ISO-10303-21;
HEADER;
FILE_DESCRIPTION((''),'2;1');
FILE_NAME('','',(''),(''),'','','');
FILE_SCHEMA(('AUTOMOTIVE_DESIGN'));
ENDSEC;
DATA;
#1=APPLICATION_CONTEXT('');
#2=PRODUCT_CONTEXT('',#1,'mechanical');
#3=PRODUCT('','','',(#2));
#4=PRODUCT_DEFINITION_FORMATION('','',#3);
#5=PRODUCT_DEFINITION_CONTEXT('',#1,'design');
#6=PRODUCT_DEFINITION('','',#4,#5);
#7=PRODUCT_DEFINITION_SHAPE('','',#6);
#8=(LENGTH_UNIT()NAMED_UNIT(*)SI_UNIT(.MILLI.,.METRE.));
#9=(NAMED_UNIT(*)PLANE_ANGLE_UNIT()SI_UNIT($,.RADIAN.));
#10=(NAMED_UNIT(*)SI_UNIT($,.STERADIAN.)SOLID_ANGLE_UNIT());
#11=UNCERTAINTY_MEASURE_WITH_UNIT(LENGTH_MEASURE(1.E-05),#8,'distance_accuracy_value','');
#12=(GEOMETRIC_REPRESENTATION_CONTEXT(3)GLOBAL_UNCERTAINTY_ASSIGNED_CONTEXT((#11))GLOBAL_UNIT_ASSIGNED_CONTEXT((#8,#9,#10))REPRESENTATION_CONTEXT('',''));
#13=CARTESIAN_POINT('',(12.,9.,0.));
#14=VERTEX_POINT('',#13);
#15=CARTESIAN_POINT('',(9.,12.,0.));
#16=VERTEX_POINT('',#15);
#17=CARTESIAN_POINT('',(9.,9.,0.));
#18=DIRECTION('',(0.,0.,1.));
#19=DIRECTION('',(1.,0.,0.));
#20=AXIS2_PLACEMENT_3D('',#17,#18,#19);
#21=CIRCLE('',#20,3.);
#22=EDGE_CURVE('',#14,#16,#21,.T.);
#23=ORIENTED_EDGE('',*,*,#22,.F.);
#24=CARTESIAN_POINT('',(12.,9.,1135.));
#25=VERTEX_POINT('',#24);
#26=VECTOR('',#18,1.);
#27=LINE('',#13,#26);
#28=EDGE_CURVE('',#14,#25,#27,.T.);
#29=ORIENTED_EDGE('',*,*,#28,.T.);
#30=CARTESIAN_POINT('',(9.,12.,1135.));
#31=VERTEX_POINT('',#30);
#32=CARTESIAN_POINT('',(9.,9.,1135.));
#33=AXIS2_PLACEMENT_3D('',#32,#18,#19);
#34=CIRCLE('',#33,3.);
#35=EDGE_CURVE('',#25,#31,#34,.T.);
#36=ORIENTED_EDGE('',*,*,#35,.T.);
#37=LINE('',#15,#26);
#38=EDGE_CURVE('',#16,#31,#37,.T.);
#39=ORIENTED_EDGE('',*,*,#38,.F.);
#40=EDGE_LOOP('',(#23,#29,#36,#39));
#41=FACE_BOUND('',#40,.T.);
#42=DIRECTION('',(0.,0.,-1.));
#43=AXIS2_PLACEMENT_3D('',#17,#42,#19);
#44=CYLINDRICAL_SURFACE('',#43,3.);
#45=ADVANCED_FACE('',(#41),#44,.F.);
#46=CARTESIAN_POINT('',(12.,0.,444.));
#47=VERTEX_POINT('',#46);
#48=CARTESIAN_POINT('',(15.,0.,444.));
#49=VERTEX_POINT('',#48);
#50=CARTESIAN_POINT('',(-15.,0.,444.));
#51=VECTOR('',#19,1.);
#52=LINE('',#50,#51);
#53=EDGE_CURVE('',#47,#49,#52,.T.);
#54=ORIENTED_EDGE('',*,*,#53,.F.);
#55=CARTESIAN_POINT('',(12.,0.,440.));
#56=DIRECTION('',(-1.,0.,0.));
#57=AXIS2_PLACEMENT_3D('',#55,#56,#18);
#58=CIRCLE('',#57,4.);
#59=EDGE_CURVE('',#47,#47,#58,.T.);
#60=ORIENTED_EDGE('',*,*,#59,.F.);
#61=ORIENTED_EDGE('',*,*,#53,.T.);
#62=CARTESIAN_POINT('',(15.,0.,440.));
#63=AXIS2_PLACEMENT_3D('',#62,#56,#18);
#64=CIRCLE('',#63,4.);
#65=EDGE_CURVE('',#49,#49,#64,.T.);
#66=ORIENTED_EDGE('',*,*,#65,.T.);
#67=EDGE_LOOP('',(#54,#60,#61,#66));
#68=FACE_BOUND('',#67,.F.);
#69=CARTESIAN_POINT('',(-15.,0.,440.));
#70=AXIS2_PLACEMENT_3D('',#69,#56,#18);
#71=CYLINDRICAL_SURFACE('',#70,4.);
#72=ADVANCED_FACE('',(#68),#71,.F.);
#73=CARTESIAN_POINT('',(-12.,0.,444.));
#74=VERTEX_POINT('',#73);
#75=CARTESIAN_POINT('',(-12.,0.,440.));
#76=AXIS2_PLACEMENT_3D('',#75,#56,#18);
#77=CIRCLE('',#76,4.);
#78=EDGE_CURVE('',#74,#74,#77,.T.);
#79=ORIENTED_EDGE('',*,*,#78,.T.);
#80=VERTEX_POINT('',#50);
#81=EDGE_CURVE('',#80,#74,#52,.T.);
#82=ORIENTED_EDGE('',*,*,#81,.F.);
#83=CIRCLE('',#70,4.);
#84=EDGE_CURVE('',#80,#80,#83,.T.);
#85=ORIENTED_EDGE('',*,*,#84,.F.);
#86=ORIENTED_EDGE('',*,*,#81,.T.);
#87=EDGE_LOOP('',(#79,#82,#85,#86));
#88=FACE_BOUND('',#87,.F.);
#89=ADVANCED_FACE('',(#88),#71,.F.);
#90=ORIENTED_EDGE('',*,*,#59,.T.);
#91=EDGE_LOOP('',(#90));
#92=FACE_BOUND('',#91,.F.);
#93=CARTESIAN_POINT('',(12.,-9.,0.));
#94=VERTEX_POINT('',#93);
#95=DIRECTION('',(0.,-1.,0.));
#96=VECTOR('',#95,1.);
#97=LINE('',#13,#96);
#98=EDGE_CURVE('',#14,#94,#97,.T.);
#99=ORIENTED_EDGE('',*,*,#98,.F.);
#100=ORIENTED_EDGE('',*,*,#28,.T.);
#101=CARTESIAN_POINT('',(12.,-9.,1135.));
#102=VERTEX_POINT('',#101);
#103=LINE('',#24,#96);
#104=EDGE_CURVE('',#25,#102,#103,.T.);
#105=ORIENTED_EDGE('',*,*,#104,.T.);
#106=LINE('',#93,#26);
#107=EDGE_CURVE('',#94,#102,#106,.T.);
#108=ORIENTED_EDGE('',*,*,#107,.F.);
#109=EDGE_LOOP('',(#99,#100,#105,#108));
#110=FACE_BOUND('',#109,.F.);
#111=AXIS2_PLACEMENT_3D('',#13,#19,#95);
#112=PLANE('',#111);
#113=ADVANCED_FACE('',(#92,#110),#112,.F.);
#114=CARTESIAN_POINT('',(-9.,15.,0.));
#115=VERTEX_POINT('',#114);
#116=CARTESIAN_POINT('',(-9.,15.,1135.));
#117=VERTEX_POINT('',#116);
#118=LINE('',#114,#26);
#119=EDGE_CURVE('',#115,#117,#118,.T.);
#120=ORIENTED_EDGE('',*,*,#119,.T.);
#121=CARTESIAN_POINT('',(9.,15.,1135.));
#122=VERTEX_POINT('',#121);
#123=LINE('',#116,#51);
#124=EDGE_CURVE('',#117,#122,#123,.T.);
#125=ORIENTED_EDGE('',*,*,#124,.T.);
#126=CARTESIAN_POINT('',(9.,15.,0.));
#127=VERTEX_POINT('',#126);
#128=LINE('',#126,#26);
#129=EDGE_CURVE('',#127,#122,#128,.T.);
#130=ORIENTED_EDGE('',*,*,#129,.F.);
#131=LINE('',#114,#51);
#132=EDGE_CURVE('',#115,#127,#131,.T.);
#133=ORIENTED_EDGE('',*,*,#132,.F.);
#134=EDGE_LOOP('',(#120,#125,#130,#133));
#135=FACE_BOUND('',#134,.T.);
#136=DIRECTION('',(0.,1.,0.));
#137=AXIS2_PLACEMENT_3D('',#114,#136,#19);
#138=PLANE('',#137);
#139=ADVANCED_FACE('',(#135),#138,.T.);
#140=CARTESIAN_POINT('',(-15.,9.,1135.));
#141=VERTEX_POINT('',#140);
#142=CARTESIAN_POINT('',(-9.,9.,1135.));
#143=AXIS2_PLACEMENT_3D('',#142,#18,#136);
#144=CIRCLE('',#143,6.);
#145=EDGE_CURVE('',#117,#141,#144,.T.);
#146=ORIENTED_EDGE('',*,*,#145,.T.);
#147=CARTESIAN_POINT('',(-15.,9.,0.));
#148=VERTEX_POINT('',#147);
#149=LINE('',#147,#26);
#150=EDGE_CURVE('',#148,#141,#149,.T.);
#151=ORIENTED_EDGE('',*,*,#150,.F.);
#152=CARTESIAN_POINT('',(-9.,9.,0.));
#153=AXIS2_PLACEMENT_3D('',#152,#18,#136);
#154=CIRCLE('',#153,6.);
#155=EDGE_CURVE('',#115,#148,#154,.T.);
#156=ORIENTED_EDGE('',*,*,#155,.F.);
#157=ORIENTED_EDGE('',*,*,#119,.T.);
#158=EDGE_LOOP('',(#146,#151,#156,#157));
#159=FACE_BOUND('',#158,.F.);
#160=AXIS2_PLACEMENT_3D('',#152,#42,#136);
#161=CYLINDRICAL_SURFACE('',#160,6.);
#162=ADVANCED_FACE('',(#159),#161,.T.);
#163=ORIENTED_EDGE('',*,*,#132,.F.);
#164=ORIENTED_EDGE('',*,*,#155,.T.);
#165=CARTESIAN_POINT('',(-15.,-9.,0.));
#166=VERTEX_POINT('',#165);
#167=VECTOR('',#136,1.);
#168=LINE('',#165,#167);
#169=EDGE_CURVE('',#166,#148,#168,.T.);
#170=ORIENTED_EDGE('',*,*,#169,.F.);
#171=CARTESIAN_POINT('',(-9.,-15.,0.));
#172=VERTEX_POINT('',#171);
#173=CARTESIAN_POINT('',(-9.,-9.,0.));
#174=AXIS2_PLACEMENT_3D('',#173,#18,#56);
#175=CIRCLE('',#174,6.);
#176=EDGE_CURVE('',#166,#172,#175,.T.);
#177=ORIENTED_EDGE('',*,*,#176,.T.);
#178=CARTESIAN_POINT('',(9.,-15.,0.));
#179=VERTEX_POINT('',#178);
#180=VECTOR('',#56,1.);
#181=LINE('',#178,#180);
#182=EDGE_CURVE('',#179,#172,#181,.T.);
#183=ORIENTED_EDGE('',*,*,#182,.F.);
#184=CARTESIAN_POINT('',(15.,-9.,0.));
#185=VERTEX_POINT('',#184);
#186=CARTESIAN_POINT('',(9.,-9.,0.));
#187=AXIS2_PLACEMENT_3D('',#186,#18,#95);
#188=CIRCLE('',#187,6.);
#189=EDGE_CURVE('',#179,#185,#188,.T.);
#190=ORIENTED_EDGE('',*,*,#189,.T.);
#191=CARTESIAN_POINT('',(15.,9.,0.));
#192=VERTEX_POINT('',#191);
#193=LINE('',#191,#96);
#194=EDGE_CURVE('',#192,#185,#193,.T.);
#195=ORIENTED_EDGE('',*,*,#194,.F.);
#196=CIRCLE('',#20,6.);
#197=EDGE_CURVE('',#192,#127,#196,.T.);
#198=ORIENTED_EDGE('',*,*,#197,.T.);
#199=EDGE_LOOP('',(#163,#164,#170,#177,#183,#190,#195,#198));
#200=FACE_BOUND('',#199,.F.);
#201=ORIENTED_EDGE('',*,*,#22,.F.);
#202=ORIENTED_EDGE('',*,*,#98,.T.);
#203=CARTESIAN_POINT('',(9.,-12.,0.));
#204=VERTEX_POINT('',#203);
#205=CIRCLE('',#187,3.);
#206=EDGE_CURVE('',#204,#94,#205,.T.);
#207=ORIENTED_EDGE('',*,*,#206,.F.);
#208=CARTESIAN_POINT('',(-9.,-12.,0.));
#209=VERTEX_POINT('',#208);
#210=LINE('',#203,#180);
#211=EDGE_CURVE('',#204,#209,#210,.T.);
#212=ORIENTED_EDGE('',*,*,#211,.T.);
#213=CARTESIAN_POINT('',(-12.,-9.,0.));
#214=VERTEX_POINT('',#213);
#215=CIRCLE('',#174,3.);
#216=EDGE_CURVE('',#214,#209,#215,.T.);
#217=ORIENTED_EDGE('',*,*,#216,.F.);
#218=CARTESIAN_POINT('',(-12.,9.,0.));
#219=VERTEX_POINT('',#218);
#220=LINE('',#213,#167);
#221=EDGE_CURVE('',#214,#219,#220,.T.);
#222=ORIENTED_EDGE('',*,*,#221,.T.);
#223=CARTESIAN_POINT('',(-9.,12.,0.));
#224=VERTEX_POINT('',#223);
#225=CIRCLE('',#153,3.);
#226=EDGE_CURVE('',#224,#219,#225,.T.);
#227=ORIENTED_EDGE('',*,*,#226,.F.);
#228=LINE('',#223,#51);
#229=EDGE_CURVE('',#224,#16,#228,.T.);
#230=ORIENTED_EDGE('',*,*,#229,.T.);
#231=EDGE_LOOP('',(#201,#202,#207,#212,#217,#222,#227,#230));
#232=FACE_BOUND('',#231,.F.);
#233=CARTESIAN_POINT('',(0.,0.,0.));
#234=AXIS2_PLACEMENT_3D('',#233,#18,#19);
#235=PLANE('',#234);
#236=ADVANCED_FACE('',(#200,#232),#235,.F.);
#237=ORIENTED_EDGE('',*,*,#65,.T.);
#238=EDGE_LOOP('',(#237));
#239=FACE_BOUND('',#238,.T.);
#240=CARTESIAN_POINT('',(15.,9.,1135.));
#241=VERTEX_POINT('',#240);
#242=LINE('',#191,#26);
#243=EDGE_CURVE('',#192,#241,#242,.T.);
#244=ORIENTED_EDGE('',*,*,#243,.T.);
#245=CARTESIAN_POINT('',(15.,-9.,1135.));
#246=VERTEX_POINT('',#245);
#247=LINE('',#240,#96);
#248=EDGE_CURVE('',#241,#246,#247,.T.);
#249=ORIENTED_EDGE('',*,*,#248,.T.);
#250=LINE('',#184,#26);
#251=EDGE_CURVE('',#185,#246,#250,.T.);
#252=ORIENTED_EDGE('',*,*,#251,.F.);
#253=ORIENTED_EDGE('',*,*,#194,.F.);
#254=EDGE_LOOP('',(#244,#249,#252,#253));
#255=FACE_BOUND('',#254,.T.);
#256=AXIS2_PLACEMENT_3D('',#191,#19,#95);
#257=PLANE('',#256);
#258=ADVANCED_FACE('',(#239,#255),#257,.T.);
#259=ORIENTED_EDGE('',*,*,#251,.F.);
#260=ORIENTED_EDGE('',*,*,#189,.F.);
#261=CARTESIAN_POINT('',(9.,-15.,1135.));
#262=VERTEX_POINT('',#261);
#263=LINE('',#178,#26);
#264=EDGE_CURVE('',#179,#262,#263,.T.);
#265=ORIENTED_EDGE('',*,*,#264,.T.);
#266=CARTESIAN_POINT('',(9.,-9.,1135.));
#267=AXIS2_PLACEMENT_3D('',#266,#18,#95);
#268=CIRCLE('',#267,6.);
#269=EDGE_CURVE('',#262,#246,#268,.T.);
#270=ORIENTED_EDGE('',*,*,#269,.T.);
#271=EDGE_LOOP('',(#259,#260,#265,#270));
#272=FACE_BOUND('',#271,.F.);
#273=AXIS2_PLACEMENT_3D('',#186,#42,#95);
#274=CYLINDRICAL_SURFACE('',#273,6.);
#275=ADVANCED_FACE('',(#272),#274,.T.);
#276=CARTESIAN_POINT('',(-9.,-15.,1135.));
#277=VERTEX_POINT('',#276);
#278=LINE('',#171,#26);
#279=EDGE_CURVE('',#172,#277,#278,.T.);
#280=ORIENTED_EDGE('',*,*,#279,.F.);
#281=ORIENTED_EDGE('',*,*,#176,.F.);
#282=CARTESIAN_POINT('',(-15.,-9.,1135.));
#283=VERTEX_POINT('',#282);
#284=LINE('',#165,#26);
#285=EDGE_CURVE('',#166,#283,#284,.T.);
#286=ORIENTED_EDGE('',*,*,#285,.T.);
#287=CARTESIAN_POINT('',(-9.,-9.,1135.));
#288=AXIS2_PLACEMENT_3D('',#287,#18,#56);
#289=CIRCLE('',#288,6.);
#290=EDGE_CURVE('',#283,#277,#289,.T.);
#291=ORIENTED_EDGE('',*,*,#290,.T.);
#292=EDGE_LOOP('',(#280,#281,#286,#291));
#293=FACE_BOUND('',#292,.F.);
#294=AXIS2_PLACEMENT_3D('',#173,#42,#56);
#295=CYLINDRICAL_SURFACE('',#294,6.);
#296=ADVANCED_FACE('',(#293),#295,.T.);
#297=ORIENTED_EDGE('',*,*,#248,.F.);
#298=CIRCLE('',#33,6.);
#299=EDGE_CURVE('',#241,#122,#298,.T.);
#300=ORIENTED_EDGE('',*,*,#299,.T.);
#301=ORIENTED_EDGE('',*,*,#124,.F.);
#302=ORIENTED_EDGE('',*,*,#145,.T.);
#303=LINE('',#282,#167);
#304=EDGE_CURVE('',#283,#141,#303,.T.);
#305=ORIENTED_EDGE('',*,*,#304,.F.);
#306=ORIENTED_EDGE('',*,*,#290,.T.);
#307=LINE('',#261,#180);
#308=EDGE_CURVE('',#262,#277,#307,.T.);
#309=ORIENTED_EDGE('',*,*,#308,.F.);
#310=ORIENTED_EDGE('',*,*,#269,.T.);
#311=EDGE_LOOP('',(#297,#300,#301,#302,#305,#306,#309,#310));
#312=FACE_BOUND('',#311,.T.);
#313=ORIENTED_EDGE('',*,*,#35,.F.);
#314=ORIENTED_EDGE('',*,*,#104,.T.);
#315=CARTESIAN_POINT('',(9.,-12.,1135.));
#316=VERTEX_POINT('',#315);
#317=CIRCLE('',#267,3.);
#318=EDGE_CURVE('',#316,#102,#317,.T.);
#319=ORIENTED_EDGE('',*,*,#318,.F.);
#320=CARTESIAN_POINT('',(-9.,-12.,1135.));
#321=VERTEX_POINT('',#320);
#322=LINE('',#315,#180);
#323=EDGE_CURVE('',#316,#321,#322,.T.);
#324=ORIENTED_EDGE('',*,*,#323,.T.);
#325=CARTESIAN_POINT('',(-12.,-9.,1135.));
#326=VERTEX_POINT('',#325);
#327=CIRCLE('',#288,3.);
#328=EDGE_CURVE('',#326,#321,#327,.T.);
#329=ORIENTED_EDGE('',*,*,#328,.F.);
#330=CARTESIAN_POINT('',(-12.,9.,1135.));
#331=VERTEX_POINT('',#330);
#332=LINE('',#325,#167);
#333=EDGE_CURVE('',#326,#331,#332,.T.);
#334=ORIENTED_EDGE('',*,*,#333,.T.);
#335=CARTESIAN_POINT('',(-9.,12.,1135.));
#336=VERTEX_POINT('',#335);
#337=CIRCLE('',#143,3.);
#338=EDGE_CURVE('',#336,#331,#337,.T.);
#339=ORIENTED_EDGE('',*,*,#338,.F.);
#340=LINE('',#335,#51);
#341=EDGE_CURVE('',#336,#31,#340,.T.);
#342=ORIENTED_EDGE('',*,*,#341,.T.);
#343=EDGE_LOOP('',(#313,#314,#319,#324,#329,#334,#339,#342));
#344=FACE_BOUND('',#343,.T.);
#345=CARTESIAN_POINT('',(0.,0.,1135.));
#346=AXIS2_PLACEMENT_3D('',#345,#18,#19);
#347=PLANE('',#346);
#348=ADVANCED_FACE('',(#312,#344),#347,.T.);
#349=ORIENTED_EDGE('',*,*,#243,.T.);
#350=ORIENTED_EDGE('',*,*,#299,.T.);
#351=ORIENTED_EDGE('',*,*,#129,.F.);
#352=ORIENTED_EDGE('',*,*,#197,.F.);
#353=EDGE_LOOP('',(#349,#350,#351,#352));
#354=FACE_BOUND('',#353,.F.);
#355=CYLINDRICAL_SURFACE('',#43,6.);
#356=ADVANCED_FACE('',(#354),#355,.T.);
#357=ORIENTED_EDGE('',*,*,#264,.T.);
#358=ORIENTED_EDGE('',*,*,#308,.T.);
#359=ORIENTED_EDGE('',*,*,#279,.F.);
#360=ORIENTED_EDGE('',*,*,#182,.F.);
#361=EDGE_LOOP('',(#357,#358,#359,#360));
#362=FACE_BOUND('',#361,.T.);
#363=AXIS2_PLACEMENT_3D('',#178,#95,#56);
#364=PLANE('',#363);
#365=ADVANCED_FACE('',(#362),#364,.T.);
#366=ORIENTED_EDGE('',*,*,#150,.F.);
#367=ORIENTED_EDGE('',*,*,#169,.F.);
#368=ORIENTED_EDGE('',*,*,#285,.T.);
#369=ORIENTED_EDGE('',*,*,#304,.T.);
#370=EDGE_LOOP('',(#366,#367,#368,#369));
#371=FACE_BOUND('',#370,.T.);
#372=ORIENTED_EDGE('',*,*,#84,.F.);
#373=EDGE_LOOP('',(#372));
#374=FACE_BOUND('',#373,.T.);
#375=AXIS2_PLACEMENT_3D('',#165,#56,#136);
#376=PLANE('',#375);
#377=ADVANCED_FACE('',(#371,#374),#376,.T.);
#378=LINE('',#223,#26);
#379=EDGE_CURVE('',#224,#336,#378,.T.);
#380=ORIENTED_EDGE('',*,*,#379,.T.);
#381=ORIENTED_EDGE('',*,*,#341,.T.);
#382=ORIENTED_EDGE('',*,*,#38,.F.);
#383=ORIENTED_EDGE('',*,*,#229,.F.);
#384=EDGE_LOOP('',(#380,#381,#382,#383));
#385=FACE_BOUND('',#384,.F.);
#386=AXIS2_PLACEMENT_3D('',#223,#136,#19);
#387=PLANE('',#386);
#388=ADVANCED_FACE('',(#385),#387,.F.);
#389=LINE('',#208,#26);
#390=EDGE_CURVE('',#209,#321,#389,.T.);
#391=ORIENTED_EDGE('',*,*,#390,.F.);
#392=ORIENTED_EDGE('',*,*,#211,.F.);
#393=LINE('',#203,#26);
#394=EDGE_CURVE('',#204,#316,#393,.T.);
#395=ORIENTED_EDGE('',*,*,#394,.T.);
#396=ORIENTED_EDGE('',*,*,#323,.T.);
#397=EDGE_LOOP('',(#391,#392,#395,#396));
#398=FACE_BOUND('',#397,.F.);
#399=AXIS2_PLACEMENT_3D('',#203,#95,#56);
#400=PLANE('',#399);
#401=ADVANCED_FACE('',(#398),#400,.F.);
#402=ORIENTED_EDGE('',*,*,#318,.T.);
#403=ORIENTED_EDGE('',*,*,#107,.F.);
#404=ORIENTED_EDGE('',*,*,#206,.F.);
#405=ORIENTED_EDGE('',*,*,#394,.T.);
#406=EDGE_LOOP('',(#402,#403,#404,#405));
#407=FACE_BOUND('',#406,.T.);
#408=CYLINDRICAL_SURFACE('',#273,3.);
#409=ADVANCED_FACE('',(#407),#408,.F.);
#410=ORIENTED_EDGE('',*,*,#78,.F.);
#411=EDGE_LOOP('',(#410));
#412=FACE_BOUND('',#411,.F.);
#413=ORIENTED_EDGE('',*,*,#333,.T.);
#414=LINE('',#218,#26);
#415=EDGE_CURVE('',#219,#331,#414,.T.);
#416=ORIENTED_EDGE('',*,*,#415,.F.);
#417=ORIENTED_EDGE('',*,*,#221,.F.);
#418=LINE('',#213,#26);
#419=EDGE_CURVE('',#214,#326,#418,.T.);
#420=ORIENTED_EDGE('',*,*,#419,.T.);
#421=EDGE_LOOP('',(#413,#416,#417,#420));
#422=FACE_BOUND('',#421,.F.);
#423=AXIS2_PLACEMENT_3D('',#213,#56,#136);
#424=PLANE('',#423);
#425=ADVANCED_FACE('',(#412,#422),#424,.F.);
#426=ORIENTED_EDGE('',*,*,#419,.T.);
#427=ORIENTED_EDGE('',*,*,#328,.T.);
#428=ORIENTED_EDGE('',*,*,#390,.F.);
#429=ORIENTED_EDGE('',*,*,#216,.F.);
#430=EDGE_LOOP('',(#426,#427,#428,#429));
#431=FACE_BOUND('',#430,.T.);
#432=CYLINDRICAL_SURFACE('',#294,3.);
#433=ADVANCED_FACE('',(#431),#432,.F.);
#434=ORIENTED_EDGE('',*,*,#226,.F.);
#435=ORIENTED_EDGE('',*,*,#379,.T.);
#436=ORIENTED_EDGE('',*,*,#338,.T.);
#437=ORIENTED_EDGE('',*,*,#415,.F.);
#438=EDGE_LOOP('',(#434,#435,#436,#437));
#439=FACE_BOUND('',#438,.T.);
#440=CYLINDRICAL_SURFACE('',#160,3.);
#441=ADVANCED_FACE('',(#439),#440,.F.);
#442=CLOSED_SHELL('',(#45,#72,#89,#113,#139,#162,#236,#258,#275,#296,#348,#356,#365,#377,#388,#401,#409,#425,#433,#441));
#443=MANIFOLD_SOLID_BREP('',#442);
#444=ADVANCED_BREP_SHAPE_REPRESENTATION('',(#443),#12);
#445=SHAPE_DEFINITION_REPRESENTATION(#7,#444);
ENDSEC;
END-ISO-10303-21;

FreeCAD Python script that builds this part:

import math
import FreeCAD as App
import Part
import Sketcher
Q = App.Units.Quantity

doc = App.newDocument("Part")
body = doc.addObject("PartDesign::Body", "Body")

sketch1 = body.newObject("Sketcher::SketchObject", "Sketch")
sketch1.AttachmentSupport = (doc.getObject("XY_Plane"), [""])
sketch1.MapMode = "FlatFace"
sketch1.addGeometry([
    Part.LineSegment(App.Vector(-15, 9, 0), App.Vector(-15, -9, 0)),
    Part.ArcOfCircle(Part.Circle(App.Vector(-9, -9, 0), App.Vector(0, 0, 1), 6), math.radians(180), math.radians(270)),
    Part.LineSegment(App.Vector(-9, -15, 0), App.Vector(9, -15, 0)),
    Part.ArcOfCircle(Part.Circle(App.Vector(9, -9, 0), App.Vector(0, 0, 1), 6), math.radians(-90), math.radians(0)),
    Part.LineSegment(App.Vector(15, -9, 0), App.Vector(15, 9, 0)),
    Part.ArcOfCircle(Part.Circle(App.Vector(9, 9, 0), App.Vector(0, 0, 1), 6), math.radians(0), math.radians(90)),
    Part.LineSegment(App.Vector(9, 15, 0), App.Vector(-9, 15, 0)),
    Part.ArcOfCircle(Part.Circle(App.Vector(-9, 9, 0), App.Vector(0, 0, 1), 6), math.radians(90), math.radians(180)),
    Part.ArcOfCircle(Part.Circle(App.Vector(-9, 9, 0), App.Vector(0, 0, 1), 3), math.radians(90), math.radians(180)),
    Part.LineSegment(App.Vector(-9, 12, 0), App.Vector(9, 12, 0)),
    Part.ArcOfCircle(Part.Circle(App.Vector(9, 9, 0), App.Vector(0, 0, 1), 3), math.radians(0), math.radians(90)),
    Part.LineSegment(App.Vector(12, 9, 0), App.Vector(12, -9, 0)),
    Part.ArcOfCircle(Part.Circle(App.Vector(9, -9, 0), App.Vector(0, 0, 1), 3), math.radians(-90), math.radians(0)),
    Part.LineSegment(App.Vector(9, -12, 0), App.Vector(-9, -12, 0)),
    Part.ArcOfCircle(Part.Circle(App.Vector(-9, -9, 0), App.Vector(0, 0, 1), 3), math.radians(180), math.radians(270)),
    Part.LineSegment(App.Vector(-12, -9, 0), App.Vector(-12, 9, 0)),
], False)
sketch1.addConstraint([
    Sketcher.Constraint("Tangent", 0, 2, 1, 1),
    Sketcher.Constraint("Tangent", 1, 2, 2, 1),
    Sketcher.Constraint("Tangent", 2, 2, 3, 1),
    Sketcher.Constraint("Tangent", 3, 2, 4, 1),
    Sketcher.Constraint("Tangent", 4, 2, 5, 1),
    Sketcher.Constraint("Tangent", 5, 2, 6, 1),
    Sketcher.Constraint("Tangent", 6, 2, 7, 1),
    Sketcher.Constraint("Tangent", 7, 2, 0, 1),
    Sketcher.Constraint("Tangent", 8, 1, 9, 1),
    Sketcher.Constraint("Tangent", 9, 2, 10, 2),
    Sketcher.Constraint("Tangent", 10, 1, 11, 1),
    Sketcher.Constraint("Tangent", 11, 2, 12, 2),
    Sketcher.Constraint("Tangent", 12, 1, 13, 1),
    Sketcher.Constraint("Tangent", 13, 2, 14, 2),
    Sketcher.Constraint("Tangent", 14, 1, 15, 1),
    Sketcher.Constraint("Tangent", 15, 2, 8, 2),
    Sketcher.Constraint("Vertical", 0),
    Sketcher.Constraint("Horizontal", 2),
    Sketcher.Constraint("Vertical", 4),
    Sketcher.Constraint("Horizontal", 6),
    Sketcher.Constraint("Horizontal", 9),
    Sketcher.Constraint("Vertical", 11),
    Sketcher.Constraint("Horizontal", 13),
    Sketcher.Constraint("Vertical", 15),
    Sketcher.Constraint("Coincident", 8, 3, 7, 3),
    Sketcher.Constraint("Coincident", 10, 3, 5, 3),
    Sketcher.Constraint("Coincident", 12, 3, 3, 3),
    Sketcher.Constraint("Equal", 1, 3),
    Sketcher.Constraint("Equal", 3, 5),
    Sketcher.Constraint("Equal", 5, 7),
    Sketcher.Constraint("Equal", 12, 14),
    Sketcher.Constraint("Symmetric", 1, 3, 5, 3, -1, 1),
    Sketcher.Constraint("Equal", 13, 0),
    Sketcher.Constraint("Radius", 1, Q("6 mm")),
    Sketcher.Constraint("Radius", 8, Q("3 mm")),
    Sketcher.Constraint("DistanceX", 0, 2, -1, 1, Q("15 mm")),
])
pad1 = body.newObject("PartDesign::Pad", "Pad")
pad1.Profile = sketch1
pad1.Length = 1135

sketch2 = body.newObject("Sketcher::SketchObject", "Sketch001")
sketch2.AttachmentSupport = (doc.getObject("YZ_Plane"), [""])
sketch2.MapMode = "FlatFace"
sketch2.AttachmentOffset = App.Placement(App.Vector(0, 0, -15), App.Rotation())
sketch2.addGeometry([
    Part.Circle(App.Vector(0, 1840, 0), App.Vector(0, 0, 1), 4),
    Part.Circle(App.Vector(0, 440, 0), App.Vector(0, 0, 1), 4),
], False)
sketch2.addConstraint([
    Sketcher.Constraint("Equal", 0, 1),
    Sketcher.Constraint("PointOnObject", 0, 3, -2),
    Sketcher.Constraint("PointOnObject", 1, 3, -2),
    Sketcher.Constraint("Diameter", 0, Q("8 mm")),
    Sketcher.Constraint("DistanceY", -1, 1, 1, 3, Q("440 mm")),
    Sketcher.Constraint("DistanceY", -1, 1, 0, 3, Q("1840 mm")),
])
pocket1 = body.newObject("PartDesign::Pocket", "Pocket")
pocket1.Profile = sketch2
pocket1.Type = "ThroughAll"
pocket1.Reversed = True

doc.recompute()
